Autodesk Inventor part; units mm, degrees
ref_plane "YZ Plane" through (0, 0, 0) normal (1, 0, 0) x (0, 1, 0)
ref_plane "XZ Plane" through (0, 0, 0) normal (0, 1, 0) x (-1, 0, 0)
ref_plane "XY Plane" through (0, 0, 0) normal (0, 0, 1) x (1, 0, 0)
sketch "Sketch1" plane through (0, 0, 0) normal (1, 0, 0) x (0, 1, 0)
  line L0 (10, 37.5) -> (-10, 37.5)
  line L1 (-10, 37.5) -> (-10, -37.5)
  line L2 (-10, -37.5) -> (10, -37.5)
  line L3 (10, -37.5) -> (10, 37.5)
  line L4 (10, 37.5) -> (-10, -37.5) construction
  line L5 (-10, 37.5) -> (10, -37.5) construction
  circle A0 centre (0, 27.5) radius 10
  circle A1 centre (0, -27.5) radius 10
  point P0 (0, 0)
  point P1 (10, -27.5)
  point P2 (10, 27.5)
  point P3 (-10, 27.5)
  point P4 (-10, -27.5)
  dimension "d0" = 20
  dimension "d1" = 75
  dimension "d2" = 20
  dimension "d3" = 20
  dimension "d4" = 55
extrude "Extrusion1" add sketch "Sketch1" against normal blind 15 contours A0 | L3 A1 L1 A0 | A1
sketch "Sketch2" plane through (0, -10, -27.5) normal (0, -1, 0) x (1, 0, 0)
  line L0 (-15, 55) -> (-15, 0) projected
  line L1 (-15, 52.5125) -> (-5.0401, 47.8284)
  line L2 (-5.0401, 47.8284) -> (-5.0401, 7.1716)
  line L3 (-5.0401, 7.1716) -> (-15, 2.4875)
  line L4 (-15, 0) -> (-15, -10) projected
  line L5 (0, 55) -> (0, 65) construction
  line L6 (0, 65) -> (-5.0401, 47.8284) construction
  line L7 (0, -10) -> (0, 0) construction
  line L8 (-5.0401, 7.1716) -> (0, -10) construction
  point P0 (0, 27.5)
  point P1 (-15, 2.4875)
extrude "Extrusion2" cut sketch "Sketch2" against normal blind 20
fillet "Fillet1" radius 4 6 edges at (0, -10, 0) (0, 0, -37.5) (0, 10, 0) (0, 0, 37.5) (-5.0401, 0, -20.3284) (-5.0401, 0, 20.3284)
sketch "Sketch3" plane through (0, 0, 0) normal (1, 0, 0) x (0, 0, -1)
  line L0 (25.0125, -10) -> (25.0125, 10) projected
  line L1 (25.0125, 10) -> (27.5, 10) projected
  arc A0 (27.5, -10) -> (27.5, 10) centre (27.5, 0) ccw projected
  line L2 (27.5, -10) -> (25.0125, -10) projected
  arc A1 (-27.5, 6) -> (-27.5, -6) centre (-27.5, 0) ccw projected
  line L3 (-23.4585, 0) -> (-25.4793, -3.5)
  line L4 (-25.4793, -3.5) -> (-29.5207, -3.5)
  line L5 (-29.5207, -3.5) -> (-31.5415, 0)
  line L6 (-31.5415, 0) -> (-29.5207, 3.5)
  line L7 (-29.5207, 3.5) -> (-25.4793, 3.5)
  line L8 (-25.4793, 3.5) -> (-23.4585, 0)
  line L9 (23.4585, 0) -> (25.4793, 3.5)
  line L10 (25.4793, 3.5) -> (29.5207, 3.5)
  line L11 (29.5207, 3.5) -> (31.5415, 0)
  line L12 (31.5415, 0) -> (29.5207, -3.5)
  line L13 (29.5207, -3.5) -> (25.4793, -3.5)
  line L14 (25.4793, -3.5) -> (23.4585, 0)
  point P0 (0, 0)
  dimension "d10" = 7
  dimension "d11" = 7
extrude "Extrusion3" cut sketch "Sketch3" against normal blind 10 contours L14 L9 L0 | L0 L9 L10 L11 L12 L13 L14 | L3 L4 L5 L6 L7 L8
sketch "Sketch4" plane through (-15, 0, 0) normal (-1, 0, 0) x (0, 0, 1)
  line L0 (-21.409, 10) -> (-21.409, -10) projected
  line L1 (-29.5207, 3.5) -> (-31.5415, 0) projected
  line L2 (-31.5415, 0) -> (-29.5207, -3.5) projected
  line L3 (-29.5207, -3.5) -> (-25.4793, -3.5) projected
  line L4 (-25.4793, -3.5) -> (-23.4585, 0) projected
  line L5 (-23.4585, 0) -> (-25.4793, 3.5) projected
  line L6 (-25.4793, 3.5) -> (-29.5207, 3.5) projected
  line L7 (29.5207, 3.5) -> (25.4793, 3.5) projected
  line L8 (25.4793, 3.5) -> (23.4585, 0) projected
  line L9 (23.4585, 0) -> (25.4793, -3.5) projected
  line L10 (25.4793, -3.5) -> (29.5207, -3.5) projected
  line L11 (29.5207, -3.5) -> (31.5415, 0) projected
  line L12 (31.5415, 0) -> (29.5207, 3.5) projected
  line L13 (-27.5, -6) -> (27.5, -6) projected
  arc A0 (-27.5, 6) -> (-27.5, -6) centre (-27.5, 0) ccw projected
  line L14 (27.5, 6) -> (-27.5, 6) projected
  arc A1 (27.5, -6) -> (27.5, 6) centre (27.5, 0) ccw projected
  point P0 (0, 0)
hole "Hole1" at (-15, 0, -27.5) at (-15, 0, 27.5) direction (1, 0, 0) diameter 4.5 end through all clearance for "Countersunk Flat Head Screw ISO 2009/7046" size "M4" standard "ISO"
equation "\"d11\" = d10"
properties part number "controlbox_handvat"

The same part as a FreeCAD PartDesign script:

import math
import FreeCAD as App
import Part
import Sketcher
from FreeCAD import Vector
Q = App.Units.Quantity


def edges_at(feature, points):
    """Names of the edges that pass closest to the given points."""
    edges = feature.Shape.Edges
    near = lambda p: min(range(len(edges)), key=lambda i: edges[i].distToShape(Part.Vertex(*p))[0])
    return sorted({f"Edge{near(p) + 1}" for p in points})


def add_polygon(sketch, points):
    """Adds a closed chain of lines whose ends are joined by coincident constraints."""
    first, n = sketch.GeometryCount, len(points)
    for a, b in zip(points, points[1:] + points[:1]):
        sketch.addGeometry(Part.LineSegment(App.Vector(*a, 0), App.Vector(*b, 0)), False)
    for i in range(n):
        sketch.addConstraint(Sketcher.Constraint("Coincident", first + i, 2, first + (i + 1) % n, 1))

doc = App.newDocument("Part")
body = doc.addObject("PartDesign::Body", "Body")

sketch1 = body.newObject("Sketcher::SketchObject", "Sketch")
sketch1.AttachmentSupport = (doc.getObject("YZ_Plane"), [""])
sketch1.MapMode = "FlatFace"
sketch1.addGeometry(Part.ArcOfCircle(Part.Circle(Vector(0, 28, 0), Vector(0, 0, 1), 10), math.radians(0), math.radians(180)), False)
sketch1.addGeometry(Part.LineSegment(Vector(-10, 28, 0), Vector(-10, -28, 0)), False)
sketch1.addGeometry(Part.ArcOfCircle(Part.Circle(Vector(0, -28, 0), Vector(0, 0, 1), 10), math.radians(180), math.radians(360)), False)
sketch1.addGeometry(Part.LineSegment(Vector(10, -28, 0), Vector(10, 28, 0)), False)
sketch1.addConstraint(Sketcher.Constraint("Tangent", 0, 2, 1, 1))
sketch1.addConstraint(Sketcher.Constraint("Tangent", 1, 2, 2, 1))
sketch1.addConstraint(Sketcher.Constraint("Tangent", 2, 2, 3, 1))
sketch1.addConstraint(Sketcher.Constraint("Tangent", 3, 2, 0, 1))
sketch1.addConstraint(Sketcher.Constraint("Vertical", 1))
sketch1.addConstraint(Sketcher.Constraint("Vertical", 3))
sketch1.addConstraint(Sketcher.Constraint("Symmetric", 0, 3, 2, 3, -1, 1))
sketch1.addConstraint(Sketcher.Constraint("Radius", 0, 10.0))
sketch1.addConstraint(Sketcher.Constraint("DistanceY", 1, 2, 1, 1, 55.0))
pad1 = body.newObject("PartDesign::Pad", "Pad")
pad1.Profile = sketch1
pad1.Length = 15
pad1.Reversed = True

sketch2 = body.newObject("Sketcher::SketchObject", "Sketch001")
sketch2.AttachmentSupport = (doc.getObject("XZ_Plane"), [""])
sketch2.MapMode = "FlatFace"
sketch2.AttachmentOffset = App.Placement(Vector(0, 0, 10), App.Rotation())
add_polygon(sketch2, [(-5, 20), (-15, 25), (-15, -25), (-5, -20)])
sketch2.addConstraint(Sketcher.Constraint("Vertical", 1))
sketch2.addConstraint(Sketcher.Constraint("Vertical", 3))
sketch2.addConstraint(Sketcher.Constraint("Equal", 0, 2))
sketch2.addConstraint(Sketcher.Constraint("DistanceX", 0, 2, -1, 1, 15.0))
sketch2.addConstraint(Sketcher.Constraint("DistanceY", 1, 2, 1, 1, 50.025))
sketch2.addConstraint(Sketcher.Constraint("DistanceX", 2, 2, -1, 1, 5.04))
sketch2.addConstraint(Sketcher.Constraint("DistanceY", 3, 1, 3, 2, 40.6568))
sketch2.addConstraint(Sketcher.Constraint("DistanceY", -1, 1, 0, 2, 25.0125))
pocket1 = body.newObject("PartDesign::Pocket", "Pocket")
pocket1.Profile = sketch2
pocket1.Length = 20
doc.recompute()

fillet = body.newObject("PartDesign::Fillet", "Fillet")
fillet.Base = (pocket1, edges_at(pocket1, [
    (0, -10, 0),
    (0, 0, -37.5),
    (0, 10, 0),
    (0, 0, 37.5),
    (-5.04, 0, -20.328),
    (-5.04, 0, 20.328),
]))
fillet.Radius = 4

sketch3 = body.newObject("Sketcher::SketchObject", "Sketch002")
sketch3.AttachmentSupport = (doc.getObject("YZ_Plane"), [""])
sketch3.MapMode = "FlatFace"
add_polygon(sketch3, [(0, -23.5), (-3.5, -25.5), (-3.5, -29.5), (0, -31.5), (3.5, -29.5), (3.5, -25.5)])
add_polygon(sketch3, [(-3.5, 25.5), (0, 23.5), (3.5, 25.5), (3.5, 29.5), (0, 31.5), (-3.5, 29.5)])
sketch3.addConstraint(Sketcher.Constraint("Vertical", 1))
sketch3.addConstraint(Sketcher.Constraint("Vertical", 4))
sketch3.addConstraint(Sketcher.Constraint("Vertical", 8))
sketch3.addConstraint(Sketcher.Constraint("Vertical", 11))
sketch3.addConstraint(Sketcher.Constraint("Symmetric", 5, 2, 6, 2, -1, 1))
sketch3.addConstraint(Sketcher.Constraint("Symmetric", 0, 2, 7, 2, -1, 1))
sketch3.addConstraint(Sketcher.Constraint("Symmetric", 2, 2, 9, 2, -1, 1))
sketch3.addConstraint(Sketcher.Constraint("Symmetric", 3, 2, 10, 2, -1, 1))
sketch3.addConstraint(Sketcher.Constraint("Symmetric", 1, 2, 3, 2, -2))
sketch3.addConstraint(Sketcher.Constraint("PointOnObject", 2, 2, -2))
sketch3.addConstraint(Sketcher.Constraint("PointOnObject", 5, 2, -2))
sketch3.addConstraint(Sketcher.Constraint("Parallel", 0, 3))
sketch3.addConstraint(Sketcher.Constraint("Parallel", 2, 5))
sketch3.addConstraint(Sketcher.Constraint("Parallel", 5, 6))
sketch3.addConstraint(Sketcher.Constraint("Parallel", 6, 9))
sketch3.addConstraint(Sketcher.Constraint("DistanceX", 1, 2, 3, 2, 7.0))
sketch3.addConstraint(Sketcher.Constraint("Angle", 0, Q("-149.999 deg")))
sketch3.addConstraint(Sketcher.Constraint("DistanceY", 3, 2, 7, 2, 55.0))
sketch3.addConstraint(Sketcher.Constraint("DistanceY", 1, 2, 1, 1, 4.0414))
pocket2 = body.newObject("PartDesign::Pocket", "Pocket001")
pocket2.Profile = sketch3
pocket2.Length = 10

sketch4 = body.newObject("Sketcher::SketchObject", "Sketch003")
sketch4.AttachmentSupport = (doc.getObject("YZ_Plane"), [""])
sketch4.MapMode = "FlatFace"
sketch4.AttachmentOffset = App.Placement(Vector(0, 0, -15), App.Rotation())
sketch4.addGeometry(Part.Circle(Vector(0, -27.5, 0), Vector(0, 0, 1), 2.2), False)
sketch4.addGeometry(Part.Circle(Vector(0, 27.5, 0), Vector(0, 0, 1), 2.2), False)
sketch4.addConstraint(Sketcher.Constraint("Equal", 0, 1))
sketch4.addConstraint(Sketcher.Constraint("Symmetric", 0, 3, 1, 3, -1, 1))
sketch4.addConstraint(Sketcher.Constraint("PointOnObject", 0, 3, -2))
sketch4.addConstraint(Sketcher.Constraint("Diameter", 0, 4.5))
sketch4.addConstraint(Sketcher.Constraint("DistanceY", 0, 3, 1, 3, 55.0))
doc.recompute()
hole = body.newObject("PartDesign::Hole", "Hole")
hole.Profile = sketch4
hole.ThreadType = "None"
hole.Diameter = 4.5
hole.DepthType = "ThroughAll"
hole.Reversed = True

doc.recompute()
